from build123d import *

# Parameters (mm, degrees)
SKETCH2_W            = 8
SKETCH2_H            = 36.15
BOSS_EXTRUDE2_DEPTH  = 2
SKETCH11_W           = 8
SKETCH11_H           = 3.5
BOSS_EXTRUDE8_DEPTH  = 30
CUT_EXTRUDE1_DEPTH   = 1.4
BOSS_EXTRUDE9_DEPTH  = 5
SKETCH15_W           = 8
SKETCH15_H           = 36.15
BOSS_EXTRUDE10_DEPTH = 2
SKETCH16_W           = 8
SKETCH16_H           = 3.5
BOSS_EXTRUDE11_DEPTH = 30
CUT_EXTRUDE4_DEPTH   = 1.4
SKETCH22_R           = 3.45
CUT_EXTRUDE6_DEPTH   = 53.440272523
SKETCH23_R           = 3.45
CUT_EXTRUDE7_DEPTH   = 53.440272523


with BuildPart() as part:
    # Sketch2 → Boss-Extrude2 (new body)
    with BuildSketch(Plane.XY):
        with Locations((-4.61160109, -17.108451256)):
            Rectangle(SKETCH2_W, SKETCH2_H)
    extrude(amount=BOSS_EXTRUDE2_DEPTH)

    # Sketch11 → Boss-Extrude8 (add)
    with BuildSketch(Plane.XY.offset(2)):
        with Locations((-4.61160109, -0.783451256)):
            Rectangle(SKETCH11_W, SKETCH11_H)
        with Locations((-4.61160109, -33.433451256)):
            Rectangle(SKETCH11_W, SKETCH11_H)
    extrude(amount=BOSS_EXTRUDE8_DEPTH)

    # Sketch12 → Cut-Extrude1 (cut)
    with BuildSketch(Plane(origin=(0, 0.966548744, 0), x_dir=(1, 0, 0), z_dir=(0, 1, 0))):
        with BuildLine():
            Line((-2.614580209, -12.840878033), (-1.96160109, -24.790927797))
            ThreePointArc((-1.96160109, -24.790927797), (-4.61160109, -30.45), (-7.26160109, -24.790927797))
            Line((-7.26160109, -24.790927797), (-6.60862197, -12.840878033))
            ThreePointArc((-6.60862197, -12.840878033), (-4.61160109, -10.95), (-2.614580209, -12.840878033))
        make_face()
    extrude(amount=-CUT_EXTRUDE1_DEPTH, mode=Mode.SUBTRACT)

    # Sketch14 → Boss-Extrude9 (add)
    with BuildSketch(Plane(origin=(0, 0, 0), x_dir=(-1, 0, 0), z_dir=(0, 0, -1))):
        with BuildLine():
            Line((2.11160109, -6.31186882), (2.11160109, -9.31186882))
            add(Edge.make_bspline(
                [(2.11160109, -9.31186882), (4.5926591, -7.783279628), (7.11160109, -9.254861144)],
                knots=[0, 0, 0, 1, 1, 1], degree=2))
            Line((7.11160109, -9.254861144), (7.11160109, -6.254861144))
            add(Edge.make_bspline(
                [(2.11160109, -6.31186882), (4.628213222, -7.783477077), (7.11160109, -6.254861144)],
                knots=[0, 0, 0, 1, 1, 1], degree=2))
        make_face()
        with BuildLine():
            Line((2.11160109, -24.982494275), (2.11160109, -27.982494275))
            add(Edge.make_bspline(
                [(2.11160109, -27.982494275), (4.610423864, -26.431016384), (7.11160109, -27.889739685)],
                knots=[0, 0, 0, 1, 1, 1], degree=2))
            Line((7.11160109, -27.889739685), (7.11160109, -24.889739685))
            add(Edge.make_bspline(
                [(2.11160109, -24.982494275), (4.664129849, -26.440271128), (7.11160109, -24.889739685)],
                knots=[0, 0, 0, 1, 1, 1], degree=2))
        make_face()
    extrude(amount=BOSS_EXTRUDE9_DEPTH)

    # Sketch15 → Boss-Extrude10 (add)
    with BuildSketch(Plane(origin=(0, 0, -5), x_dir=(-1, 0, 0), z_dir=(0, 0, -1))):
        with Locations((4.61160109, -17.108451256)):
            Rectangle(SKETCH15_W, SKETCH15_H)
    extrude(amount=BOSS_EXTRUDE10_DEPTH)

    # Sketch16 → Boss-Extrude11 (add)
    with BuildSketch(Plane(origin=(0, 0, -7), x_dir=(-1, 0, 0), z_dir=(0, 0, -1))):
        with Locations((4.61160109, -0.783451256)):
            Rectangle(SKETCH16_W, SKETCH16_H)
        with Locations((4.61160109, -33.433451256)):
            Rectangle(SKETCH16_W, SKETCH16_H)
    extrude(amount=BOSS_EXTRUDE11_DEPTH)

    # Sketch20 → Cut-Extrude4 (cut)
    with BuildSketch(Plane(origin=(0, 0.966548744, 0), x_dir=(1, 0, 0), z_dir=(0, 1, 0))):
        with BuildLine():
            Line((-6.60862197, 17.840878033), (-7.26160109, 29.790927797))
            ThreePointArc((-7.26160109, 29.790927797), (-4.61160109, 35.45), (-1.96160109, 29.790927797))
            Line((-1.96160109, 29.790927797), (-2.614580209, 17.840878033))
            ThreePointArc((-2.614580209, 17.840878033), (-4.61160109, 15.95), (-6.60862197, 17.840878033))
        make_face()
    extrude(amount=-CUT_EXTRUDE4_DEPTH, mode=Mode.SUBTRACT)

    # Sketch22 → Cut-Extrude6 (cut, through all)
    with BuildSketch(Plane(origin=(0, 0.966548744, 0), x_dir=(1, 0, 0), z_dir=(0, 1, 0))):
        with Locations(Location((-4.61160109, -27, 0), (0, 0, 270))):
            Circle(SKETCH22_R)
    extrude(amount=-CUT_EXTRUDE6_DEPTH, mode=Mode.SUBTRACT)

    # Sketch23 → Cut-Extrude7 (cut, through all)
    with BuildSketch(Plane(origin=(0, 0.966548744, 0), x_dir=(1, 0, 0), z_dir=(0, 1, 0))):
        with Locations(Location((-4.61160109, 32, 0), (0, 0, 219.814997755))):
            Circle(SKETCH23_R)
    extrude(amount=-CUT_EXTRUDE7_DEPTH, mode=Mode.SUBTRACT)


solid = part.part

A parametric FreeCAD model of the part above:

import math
import FreeCAD as App
import Part
import Sketcher
from FreeCAD import Vector
Q = App.Units.Quantity


def add_polygon(sketch, points):
    """Adds a closed chain of lines whose ends are joined by coincident constraints."""
    first, n = sketch.GeometryCount, len(points)
    for a, b in zip(points, points[1:] + points[:1]):
        sketch.addGeometry(Part.LineSegment(App.Vector(*a, 0), App.Vector(*b, 0)), False)
    for i in range(n):
        sketch.addConstraint(Sketcher.Constraint("Coincident", first + i, 2, first + (i + 1) % n, 1))

doc = App.newDocument("Part")
params = doc.addObject("Spreadsheet::Sheet", "Params")
for row, (alias, value) in enumerate([
    ("sketch1_width", "8 mm"),
    ("sketch1_height", "36.15 mm"),
    ("pad1_length", "2 mm"),
    ("sketch2_width", "8 mm"),
    ("sketch2_height", "3.5 mm"),
    ("pad2_length", "30 mm"),
    ("sketch3_radius", "2 mm"),
    ("sketch3_radius2", "3.45 mm"),
    ("pocket1_length", "1.4 mm"),
    ("pad3_length", "5 mm"),
    ("sketch5_width", "8 mm"),
    ("sketch5_height", "36.15 mm"),
    ("pad4_length", "2 mm"),
    ("sketch6_width", "8 mm"),
    ("sketch6_height", "3.5 mm"),
    ("pad5_length", "30 mm"),
    ("sketch7_radius", "2 mm"),
    ("sketch7_radius2", "3.45 mm"),
    ("pocket2_length", "1.4 mm"),
    ("sketch8_diameter", "6.9 mm"),
    ("sketch9_diameter", "6.9 mm"),
], start=1):
    params.set(f"A{row}", alias)
    params.set(f"B{row}", "=" + value)
    params.setAlias(f"B{row}", alias)

body = doc.addObject("PartDesign::Body", "Body")

sketch1 = body.newObject("Sketcher::SketchObject", "Sketch")
sketch1.AttachmentSupport = (doc.getObject("XY_Plane"), [""])
sketch1.MapMode = "FlatFace"
add_polygon(sketch1, [(-9, 1), (-9, -35), (-1, -35), (-1, 1)])
sketch1.addConstraint([
    Sketcher.Constraint("Vertical", 0),
    Sketcher.Constraint("Horizontal", 1),
    Sketcher.Constraint("Vertical", 2),
    Sketcher.Constraint("Horizontal", 3),
    Sketcher.Constraint("DistanceX", 1, 1, 1, 2, Q("8 mm")),
    Sketcher.Constraint("DistanceY", 0, 2, 0, 1, Q("36.15 mm")),
    Sketcher.Constraint("DistanceX", 0, 2, -1, 1, Q("8.611601 mm")),
    Sketcher.Constraint("DistanceY", 0, 2, -1, 1, Q("35.183451 mm")),
])
sketch1.setExpression("Constraints[8]", "Params.sketch1_width")
sketch1.setExpression("Constraints[9]", "Params.sketch1_height")
pad1 = body.newObject("PartDesign::Pad", "Pad")
pad1.Profile = sketch1
pad1.setExpression("Length", "Params.pad1_length")

sketch2 = body.newObject("Sketcher::SketchObject", "Sketch001")
sketch2.AttachmentSupport = (doc.getObject("XY_Plane"), [""])
sketch2.MapMode = "FlatFace"
sketch2.AttachmentOffset = App.Placement(Vector(0, 0, 2), App.Rotation())
add_polygon(sketch2, [(-8.6, 1), (-8.6, -2.5), (-0.6, -2.5), (-0.6, 1)])
add_polygon(sketch2, [(-8.6, -31.7), (-8.6, -35.2), (-0.6, -35.2), (-0.6, -31.7)])
sketch2.addConstraint([
    Sketcher.Constraint("Vertical", 0),
    Sketcher.Constraint("Horizontal", 1),
    Sketcher.Constraint("Vertical", 2),
    Sketcher.Constraint("Horizontal", 3),
    Sketcher.Constraint("Vertical", 4),
    Sketcher.Constraint("Horizontal", 5),
    Sketcher.Constraint("Vertical", 6),
    Sketcher.Constraint("Horizontal", 7),
    Sketcher.Constraint("Vertical", 3, 2, 4, 2),
    Sketcher.Constraint("Vertical", 2, 2, 5, 2),
    Sketcher.Constraint("Equal", 2, 4),
    Sketcher.Constraint("DistanceX", 1, 1, 1, 2, Q("8 mm")),
    Sketcher.Constraint("DistanceY", 0, 2, 0, 1, Q("3.5 mm")),
    Sketcher.Constraint("DistanceY", 4, 2, 0, 2, Q("32.65 mm")),
    Sketcher.Constraint("DistanceX", 0, 2, -1, 1, Q("8.611601 mm")),
    Sketcher.Constraint("DistanceY", 0, 2, -1, 1, Q("2.533451 mm")),
])
sketch2.setExpression("Constraints[19]", "Params.sketch2_width")
sketch2.setExpression("Constraints[20]", "Params.sketch2_height")
pad2 = body.newObject("PartDesign::Pad", "Pad001")
pad2.Profile = sketch2
pad2.setExpression("Length", "Params.pad2_length")

sketch3 = body.newObject("Sketcher::SketchObject", "Sketch002")
sketch3.AttachmentSupport = (doc.getObject("XZ_Plane"), [""])
sketch3.MapMode = "FlatFace"
sketch3.AttachmentOffset = App.Placement(Vector(0, 0, -0.966549), App.Rotation())
sketch3.addGeometry([
    Part.LineSegment(Vector(-2, 24.8, 0), Vector(-2.6, 12.8, 0)),
    Part.ArcOfCircle(Part.Circle(Vector(-4.6, 12.9, 0), Vector(0, 0, 1), 2), math.radians(-177), math.radians(-3)),
    Part.LineSegment(Vector(-6.6, 12.8, 0), Vector(-7.3, 24.8, 0)),
    Part.ArcOfCircle(Part.Circle(Vector(-4.6, 27, 0), Vector(0, 0, 1), 3.5), math.radians(-40), math.radians(220)),
], False)
sketch3.addConstraint([
    Sketcher.Constraint("Tangent", 0, 2, 1, 2),
    Sketcher.Constraint("Tangent", 1, 1, 2, 1),
    Sketcher.Constraint("Coincident", 2, 2, 3, 2),
    Sketcher.Constraint("Coincident", 3, 1, 0, 1),
    Sketcher.Constraint("Horizontal", 0, 2, 1, 1),
    Sketcher.Constraint("Horizontal", 2, 2, 3, 1),
    Sketcher.Constraint("Radius", 1, Q("2 mm")),
    Sketcher.Constraint("Radius", 3, Q("3.45 mm")),
    Sketcher.Constraint("DistanceY", -1, 1, 3, 3, Q("27 mm")),
    Sketcher.Constraint("DistanceX", 2, 2, 3, 1, Q("5.3 mm")),
    Sketcher.Constraint("DistanceY", -1, 1, 1, 3, Q("12.95 mm")),
    Sketcher.Constraint("DistanceX", 1, 3, -1, 1, Q("4.611601 mm")),
])
sketch3.setExpression("Constraints[6]", "Params.sketch3_radius")
sketch3.setExpression("Constraints[7]", "Params.sketch3_radius2")
pocket1 = body.newObject("PartDesign::Pocket", "Pocket")
pocket1.Profile = sketch3
pocket1.setExpression("Length", "Params.pocket1_length")
pocket1.Reversed = True

sketch4 = body.newObject("Sketcher::SketchObject", "Sketch003")
sketch4.AttachmentSupport = (doc.getObject("XY_Plane"), [""])
sketch4.MapMode = "FlatFace"
sketch4.addGeometry([
    Part.LineSegment(Vector(-2.111601, -6.311869, 0), Vector(-2.111601, -9.311869, 0)),
    Part.BSplineCurve([Vector(-2.111601, -9.311869, 0), Vector(-4.592659, -7.78328, 0), Vector(-7.111601, -9.254861, 0)], [3, 3], [0, 1], False, 2, [1, 1, 1], False),
    Part.LineSegment(Vector(-7.111601, -9.254861, 0), Vector(-7.111601, -6.254861, 0)),
    Part.BSplineCurve([Vector(-2.111601, -6.311869, 0), Vector(-4.628213, -7.783477, 0), Vector(-7.111601, -6.254861, 0)], [3, 3], [0, 1], False, 2, [1, 1, 1], False),
    Part.LineSegment(Vector(-2.111601, -24.982494, 0), Vector(-2.111601, -27.982494, 0)),
    Part.BSplineCurve([Vector(-2.111601, -27.982494, 0), Vector(-4.610424, -26.431016, 0), Vector(-7.111601, -27.88974, 0)], [3, 3], [0, 1], False, 2, [1, 1, 1], False),
    Part.LineSegment(Vector(-7.111601, -27.88974, 0), Vector(-7.111601, -24.88974, 0)),
    Part.BSplineCurve([Vector(-2.111601, -24.982494, 0), Vector(-4.66413, -26.440271, 0), Vector(-7.111601, -24.88974, 0)], [3, 3], [0, 1], False, 2, [1, 1, 1], False),
], False)
sketch4.addConstraint([
    Sketcher.Constraint("Block", 1),
    Sketcher.Constraint("Block", 3),
    Sketcher.Constraint("Block", 5),
    Sketcher.Constraint("Block", 7),
    Sketcher.Constraint("Coincident", 0, 2, 1, 1),
    Sketcher.Constraint("Coincident", 1, 2, 2, 1),
    Sketcher.Constraint("Coincident", 2, 2, 3, 2),
    Sketcher.Constraint("Coincident", 3, 1, 0, 1),
    Sketcher.Constraint("Coincident", 4, 2, 5, 1),
    Sketcher.Constraint("Coincident", 5, 2, 6, 1),
    Sketcher.Constraint("Coincident", 6, 2, 7, 2),
    Sketcher.Constraint("Coincident", 7, 1, 4, 1),
])
pad3 = body.newObject("PartDesign::Pad", "Pad002")
pad3.Profile = sketch4
pad3.setExpression("Length", "Params.pad3_length")
pad3.Reversed = True

sketch5 = body.newObject("Sketcher::SketchObject", "Sketch004")
sketch5.AttachmentSupport = (doc.getObject("XY_Plane"), [""])
sketch5.MapMode = "FlatFace"
sketch5.AttachmentOffset = App.Placement(Vector(0, 0, -5), App.Rotation())
add_polygon(sketch5, [(-1, 1), (-1, -35), (-9, -35), (-9, 1)])
sketch5.addConstraint([
    Sketcher.Constraint("Vertical", 0),
    Sketcher.Constraint("Horizontal", 1),
    Sketcher.Constraint("Vertical", 2),
    Sketcher.Constraint("Horizontal", 3),
    Sketcher.Constraint("DistanceX", 1, 2, 1, 1, Q("8 mm")),
    Sketcher.Constraint("DistanceY", 0, 2, 0, 1, Q("36.15 mm")),
    Sketcher.Constraint("DistanceX", 0, 2, -1, 1, Q("0.611601 mm")),
    Sketcher.Constraint("DistanceY", 0, 2, -1, 1, Q("35.183451 mm")),
])
sketch5.setExpression("Constraints[8]", "Params.sketch5_width")
sketch5.setExpression("Constraints[9]", "Params.sketch5_height")
pad4 = body.newObject("PartDesign::Pad", "Pad003")
pad4.Profile = sketch5
pad4.setExpression("Length", "Params.pad4_length")
pad4.Reversed = True

sketch6 = body.newObject("Sketcher::SketchObject", "Sketch005")
sketch6.AttachmentSupport = (doc.getObject("XY_Plane"), [""])
sketch6.MapMode = "FlatFace"
sketch6.AttachmentOffset = App.Placement(Vector(0, 0, -7), App.Rotation())
add_polygon(sketch6, [(-0.6, 1), (-0.6, -2.5), (-8.6, -2.5), (-8.6, 1)])
add_polygon(sketch6, [(-0.6, -31.7), (-0.6, -35.2), (-8.6, -35.2), (-8.6, -31.7)])
sketch6.addConstraint([
    Sketcher.Constraint("Vertical", 0),
    Sketcher.Constraint("Horizontal", 1),
    Sketcher.Constraint("Vertical", 2),
    Sketcher.Constraint("Horizontal", 3),
    Sketcher.Constraint("Vertical", 4),
    Sketcher.Constraint("Horizontal", 5),
    Sketcher.Constraint("Vertical", 6),
    Sketcher.Constraint("Horizontal", 7),
    Sketcher.Constraint("Vertical", 3, 2, 4, 2),
    Sketcher.Constraint("Vertical", 2, 2, 5, 2),
    Sketcher.Constraint("Equal", 2, 4),
    Sketcher.Constraint("DistanceX", 1, 2, 1, 1, Q("8 mm")),
    Sketcher.Constraint("DistanceY", 0, 2, 0, 1, Q("3.5 mm")),
    Sketcher.Constraint("DistanceY", 4, 2, 0, 2, Q("32.65 mm")),
    Sketcher.Constraint("DistanceX", 0, 2, -1, 1, Q("0.611601 mm")),
    Sketcher.Constraint("DistanceY", 0, 2, -1, 1, Q("2.533451 mm")),
])
sketch6.setExpression("Constraints[19]", "Params.sketch6_width")
sketch6.setExpression("Constraints[20]", "Params.sketch6_height")
pad5 = body.newObject("PartDesign::Pad", "Pad004")
pad5.Profile = sketch6
pad5.setExpression("Length", "Params.pad5_length")
pad5.Reversed = True

sketch7 = body.newObject("Sketcher::SketchObject", "Sketch006")
sketch7.AttachmentSupport = (doc.getObject("XZ_Plane"), [""])
sketch7.MapMode = "FlatFace"
sketch7.AttachmentOffset = App.Placement(Vector(0, 0, -0.966549), App.Rotation())
sketch7.addGeometry([
    Part.LineSegment(Vector(-7.3, -29.8, 0), Vector(-6.6, -17.8, 0)),
    Part.ArcOfCircle(Part.Circle(Vector(-4.6, -17.9, 0), Vector(0, 0, 1), 2), math.radians(3), math.radians(177)),
    Part.LineSegment(Vector(-2.6, -17.8, 0), Vector(-2, -29.8, 0)),
    Part.ArcOfCircle(Part.Circle(Vector(-4.6, -32, 0), Vector(0, 0, 1), 3.5), math.radians(140), math.radians(400)),
], False)
sketch7.addConstraint([
    Sketcher.Constraint("Tangent", 0, 2, 1, 2),
    Sketcher.Constraint("Tangent", 1, 1, 2, 1),
    Sketcher.Constraint("Coincident", 2, 2, 3, 2),
    Sketcher.Constraint("Coincident", 3, 1, 0, 1),
    Sketcher.Constraint("Horizontal", 0, 2, 1, 1),
    Sketcher.Constraint("Horizontal", 2, 2, 3, 1),
    Sketcher.Constraint("Radius", 1, Q("2 mm")),
    Sketcher.Constraint("Radius", 3, Q("3.45 mm")),
    Sketcher.Constraint("DistanceY", 3, 3, -1, 1, Q("32 mm")),
    Sketcher.Constraint("DistanceX", 3, 1, 2, 2, Q("5.3 mm")),
    Sketcher.Constraint("DistanceY", 1, 3, -1, 1, Q("17.95 mm")),
    Sketcher.Constraint("DistanceX", 1, 3, -1, 1, Q("4.611601 mm")),
])
sketch7.setExpression("Constraints[6]", "Params.sketch7_radius")
sketch7.setExpression("Constraints[7]", "Params.sketch7_radius2")
pocket2 = body.newObject("PartDesign::Pocket", "Pocket001")
pocket2.Profile = sketch7
pocket2.setExpression("Length", "Params.pocket2_length")
pocket2.Reversed = True

sketch8 = body.newObject("Sketcher::SketchObject", "Sketch007")
sketch8.AttachmentSupport = (doc.getObject("XZ_Plane"), [""])
sketch8.MapMode = "FlatFace"
sketch8.AttachmentOffset = App.Placement(Vector(0, 0, -0.966549), App.Rotation())
sketch8.addGeometry(Part.Circle(Vector(-4.6, 27, 0), Vector(0, 0, 1), 3.5), False)
sketch8.addConstraint([
    Sketcher.Constraint("Diameter", 0, Q("6.9 mm")),
    Sketcher.Constraint("DistanceY", -1, 1, 0, 3, Q("27 mm")),
    Sketcher.Constraint("DistanceX", 0, 3, -1, 1, Q("4.611601 mm")),
])
sketch8.setExpression("Constraints[0]", "Params.sketch8_diameter")
pocket3 = body.newObject("PartDesign::Pocket", "Pocket002")
pocket3.Profile = sketch8
pocket3.Type = "ThroughAll"
pocket3.Reversed = True

sketch9 = body.newObject("Sketcher::SketchObject", "Sketch008")
sketch9.AttachmentSupport = (doc.getObject("XZ_Plane"), [""])
sketch9.MapMode = "FlatFace"
sketch9.AttachmentOffset = App.Placement(Vector(0, 0, -0.966549), App.Rotation())
sketch9.addGeometry(Part.Circle(Vector(-4.6, -32, 0), Vector(0, 0, 1), 3.5), False)
sketch9.addConstraint([
    Sketcher.Constraint("Diameter", 0, Q("6.9 mm")),
    Sketcher.Constraint("DistanceY", 0, 3, -1, 1, Q("32 mm")),
    Sketcher.Constraint("DistanceX", 0, 3, -1, 1, Q("4.611601 mm")),
])
sketch9.setExpression("Constraints[0]", "Params.sketch9_diameter")
pocket4 = body.newObject("PartDesign::Pocket", "Pocket003")
pocket4.Profile = sketch9
pocket4.Type = "ThroughAll"
pocket4.Reversed = True

doc.recompute()
